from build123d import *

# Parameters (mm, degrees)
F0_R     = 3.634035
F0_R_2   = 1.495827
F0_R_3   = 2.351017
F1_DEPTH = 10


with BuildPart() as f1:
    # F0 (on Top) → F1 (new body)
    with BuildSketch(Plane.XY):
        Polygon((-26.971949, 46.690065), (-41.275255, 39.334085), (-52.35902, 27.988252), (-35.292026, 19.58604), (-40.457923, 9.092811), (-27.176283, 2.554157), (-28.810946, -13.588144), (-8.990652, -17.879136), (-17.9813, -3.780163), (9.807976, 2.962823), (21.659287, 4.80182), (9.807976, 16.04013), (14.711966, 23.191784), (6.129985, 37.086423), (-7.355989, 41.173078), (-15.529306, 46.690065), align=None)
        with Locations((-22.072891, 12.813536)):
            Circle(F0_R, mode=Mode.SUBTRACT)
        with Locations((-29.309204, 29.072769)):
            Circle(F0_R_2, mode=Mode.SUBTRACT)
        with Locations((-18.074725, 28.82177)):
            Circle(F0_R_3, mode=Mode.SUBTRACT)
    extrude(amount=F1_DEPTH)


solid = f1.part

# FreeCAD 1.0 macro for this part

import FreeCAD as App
import Part
import Sketcher
from FreeCAD import Vector
Q = App.Units.Quantity

doc = App.newDocument("Part")
body = doc.addObject("PartDesign::Body", "Body")

# Sketch on XY plane
sketch1 = doc.addObject("Sketcher::SketchObject", "Sketch")
body.addObject(sketch1)
sketch1.AttachmentSupport = (doc.XY_Plane, [""])
sketch1.MapMode = "FlatFace"
sketch1.addGeometry(Part.LineSegment(Vector(-26.971949, 46.690065, 0), Vector(-41.275255, 39.334085, 0)), False)
sketch1.addGeometry(Part.LineSegment(Vector(-41.275255, 39.334085, 0), Vector(-52.35902, 27.988252, 0)), False)
sketch1.addGeometry(Part.LineSegment(Vector(-52.35902, 27.988252, 0), Vector(-35.292026, 19.58604, 0)), False)
sketch1.addGeometry(Part.LineSegment(Vector(-35.292026, 19.58604, 0), Vector(-40.457923, 9.092811, 0)), False)
sketch1.addGeometry(Part.LineSegment(Vector(-40.457923, 9.092811, 0), Vector(-27.176283, 2.554157, 0)), False)
sketch1.addGeometry(Part.LineSegment(Vector(-27.176283, 2.554157, 0), Vector(-28.810946, -13.588144, 0)), False)
sketch1.addGeometry(Part.LineSegment(Vector(-28.810946, -13.588144, 0), Vector(-8.990652, -17.879136, 0)), False)
sketch1.addGeometry(Part.LineSegment(Vector(-8.990652, -17.879136, 0), Vector(-17.9813, -3.780163, 0)), False)
sketch1.addGeometry(Part.LineSegment(Vector(-17.9813, -3.780163, 0), Vector(9.807976, 2.962823, 0)), False)
sketch1.addGeometry(Part.LineSegment(Vector(9.807976, 2.962823, 0), Vector(21.659287, 4.80182, 0)), False)
sketch1.addGeometry(Part.LineSegment(Vector(21.659287, 4.80182, 0), Vector(9.807976, 16.04013, 0)), False)
sketch1.addGeometry(Part.LineSegment(Vector(9.807976, 16.04013, 0), Vector(14.711966, 23.191784, 0)), False)
sketch1.addGeometry(Part.LineSegment(Vector(14.711966, 23.191784, 0), Vector(6.129985, 37.086423, 0)), False)
sketch1.addGeometry(Part.LineSegment(Vector(6.129985, 37.086423, 0), Vector(-7.355989, 41.173078, 0)), False)
sketch1.addGeometry(Part.LineSegment(Vector(-7.355989, 41.173078, 0), Vector(-15.529306, 46.690065, 0)), False)
sketch1.addGeometry(Part.LineSegment(Vector(-15.529306, 46.690065, 0), Vector(-26.971949, 46.690065, 0)), False)
sketch1.addGeometry(Part.Circle(Vector(-22.072891, 12.813536, 0), Vector(0, 0, 1), 3.634035), False)
sketch1.addGeometry(Part.Circle(Vector(-29.309204, 29.072769, 0), Vector(0, 0, 1), 1.495827), False)
sketch1.addGeometry(Part.Circle(Vector(-18.074725, 28.82177, 0), Vector(0, 0, 1), 2.351017), False)
sketch1.addConstraint(Sketcher.Constraint("Coincident", 0, 2, 1, 1))
sketch1.addConstraint(Sketcher.Constraint("Coincident", 1, 2, 2, 1))
sketch1.addConstraint(Sketcher.Constraint("Coincident", 2, 2, 3, 1))
sketch1.addConstraint(Sketcher.Constraint("Coincident", 3, 2, 4, 1))
sketch1.addConstraint(Sketcher.Constraint("Coincident", 4, 2, 5, 1))
sketch1.addConstraint(Sketcher.Constraint("Coincident", 5, 2, 6, 1))
sketch1.addConstraint(Sketcher.Constraint("Coincident", 6, 2, 7, 1))
sketch1.addConstraint(Sketcher.Constraint("Coincident", 7, 2, 8, 1))
sketch1.addConstraint(Sketcher.Constraint("Coincident", 8, 2, 9, 1))
sketch1.addConstraint(Sketcher.Constraint("Coincident", 9, 2, 10, 1))
sketch1.addConstraint(Sketcher.Constraint("Coincident", 10, 2, 11, 1))
sketch1.addConstraint(Sketcher.Constraint("Coincident", 11, 2, 12, 1))
sketch1.addConstraint(Sketcher.Constraint("Coincident", 12, 2, 13, 1))
sketch1.addConstraint(Sketcher.Constraint("Coincident", 13, 2, 14, 1))
sketch1.addConstraint(Sketcher.Constraint("Coincident", 14, 2, 15, 1))
sketch1.addConstraint(Sketcher.Constraint("Coincident", 15, 2, 0, 1))
sketch1.addConstraint(Sketcher.Constraint("Horizontal", 15))
sketch1.addConstraint(Sketcher.Constraint("Perpendicular", 2, 3))
sketch1.addConstraint(Sketcher.Constraint("Perpendicular", 3, 4))
sketch1.addConstraint(Sketcher.Constraint("Vertical", 8, 2, 10, 2))
sketch1.addConstraint(Sketcher.Constraint("Diameter", 16, Q("7.26807 mm")))
sketch1.addConstraint(Sketcher.Constraint("Distance", 0, Q("16.083998 mm")))
sketch1.addConstraint(Sketcher.Constraint("Diameter", 17, Q("2.991654 mm")))
sketch1.addConstraint(Sketcher.Constraint("Diameter", 18, Q("4.702034 mm")))
sketch1.addConstraint(Sketcher.Constraint("DistanceY", 18, 3, 17, 3, Q("0.250999 mm")))
sketch1.addConstraint(Sketcher.Constraint("Distance", 12, Q("16.331301 mm")))
sketch1.addConstraint(Sketcher.Constraint("DistanceX", 7, 2, -1, 1, Q("17.9813 mm")))
sketch1.addConstraint(Sketcher.Constraint("DistanceX", 2, 2, 18, 3, Q("17.217301 mm")))
sketch1.addConstraint(Sketcher.Constraint("DistanceX", 3, 2, 18, 3, Q("22.383198 mm")))
sketch1.addConstraint(Sketcher.Constraint("DistanceY", 5, 2, 4, 2, Q("16.142301 mm")))
sketch1.addConstraint(Sketcher.Constraint("DistanceY", 7, 2, 16, 3, Q("16.593699 mm")))
sketch1.addConstraint(Sketcher.Constraint("DistanceX", 18, 3, 8, 2, Q("27.882701 mm")))
sketch1.addConstraint(Sketcher.Constraint("DistanceY", 8, 2, 12, 2, Q("34.1236 mm")))
sketch1.addConstraint(Sketcher.Constraint("DistanceX", 17, 3, 14, 2, Q("13.779898 mm")))
sketch1.addConstraint(Sketcher.Constraint("Distance", 2, Q("19.023129 mm")))
sketch1.addConstraint(Sketcher.Constraint("Distance", 3, Q("11.695912 mm")))
sketch1.addConstraint(Sketcher.Constraint("Distance", 8, Q("28.595659 mm")))
sketch1.addConstraint(Sketcher.Constraint("Distance", 10, Q("16.33258 mm")))
sketch1.addConstraint(Sketcher.Constraint("Distance", 11, Q("8.671521 mm")))
sketch1.addConstraint(Sketcher.Constraint("DistanceX", 15, 2, 15, 1, Q("11.442643 mm")))
sketch1.addConstraint(Sketcher.Constraint("DistanceX", 16, 3, -1, 1, Q("22.072891 mm")))
sketch1.addConstraint(Sketcher.Constraint("DistanceY", -1, 1, 17, 3, Q("29.072769 mm")))
sketch1.addConstraint(Sketcher.Constraint("DistanceX", 1, 2, -1, 1, Q("52.35902 mm")))
sketch1.addConstraint(Sketcher.Constraint("DistanceY", -1, 1, 1, 2, Q("27.988252 mm")))
sketch1.addConstraint(Sketcher.Constraint("DistanceY", -1, 1, 9, 2, Q("4.80182 mm")))
sketch1.addConstraint(Sketcher.Constraint("DistanceY", -1, 1, 10, 2, Q("16.04013 mm")))
sketch1.addConstraint(Sketcher.Constraint("DistanceX", 13, 2, -1, 1, Q("7.355989 mm")))
sketch1.addConstraint(Sketcher.Constraint("DistanceX", 15, 2, -1, 1, Q("26.971949 mm")))
sketch1.addConstraint(Sketcher.Constraint("DistanceX", 0, 2, 17, 3, Q("11.966051 mm")))
sketch1.addConstraint(Sketcher.Constraint("DistanceY", 16, 3, 0, 2, Q("26.520549 mm")))
sketch1.addConstraint(Sketcher.Constraint("DistanceY", 4, 2, 16, 3, Q("10.259379 mm")))
sketch1.addConstraint(Sketcher.Constraint("DistanceX", 3, 2, 4, 2, Q("13.28164 mm")))
sketch1.addConstraint(Sketcher.Constraint("DistanceX", 2, 2, 5, 2, Q("6.48108 mm")))
sketch1.addConstraint(Sketcher.Constraint("DistanceY", 6, 2, 5, 2, Q("4.290992 mm")))
sketch1.addConstraint(Sketcher.Constraint("DistanceX", 4, 2, 6, 2, Q("18.185631 mm")))
sketch1.addConstraint(Sketcher.Constraint("DistanceX", 10, 2, 11, 2, Q("4.90399 mm")))
sketch1.addConstraint(Sketcher.Constraint("DistanceY", 17, 3, 13, 2, Q("12.100309 mm")))
pad1 = doc.addObject("PartDesign::Pad", "Pad")
body.addObject(pad1)
pad1.Profile = sketch1
pad1.Length = 10

doc.recompute()
